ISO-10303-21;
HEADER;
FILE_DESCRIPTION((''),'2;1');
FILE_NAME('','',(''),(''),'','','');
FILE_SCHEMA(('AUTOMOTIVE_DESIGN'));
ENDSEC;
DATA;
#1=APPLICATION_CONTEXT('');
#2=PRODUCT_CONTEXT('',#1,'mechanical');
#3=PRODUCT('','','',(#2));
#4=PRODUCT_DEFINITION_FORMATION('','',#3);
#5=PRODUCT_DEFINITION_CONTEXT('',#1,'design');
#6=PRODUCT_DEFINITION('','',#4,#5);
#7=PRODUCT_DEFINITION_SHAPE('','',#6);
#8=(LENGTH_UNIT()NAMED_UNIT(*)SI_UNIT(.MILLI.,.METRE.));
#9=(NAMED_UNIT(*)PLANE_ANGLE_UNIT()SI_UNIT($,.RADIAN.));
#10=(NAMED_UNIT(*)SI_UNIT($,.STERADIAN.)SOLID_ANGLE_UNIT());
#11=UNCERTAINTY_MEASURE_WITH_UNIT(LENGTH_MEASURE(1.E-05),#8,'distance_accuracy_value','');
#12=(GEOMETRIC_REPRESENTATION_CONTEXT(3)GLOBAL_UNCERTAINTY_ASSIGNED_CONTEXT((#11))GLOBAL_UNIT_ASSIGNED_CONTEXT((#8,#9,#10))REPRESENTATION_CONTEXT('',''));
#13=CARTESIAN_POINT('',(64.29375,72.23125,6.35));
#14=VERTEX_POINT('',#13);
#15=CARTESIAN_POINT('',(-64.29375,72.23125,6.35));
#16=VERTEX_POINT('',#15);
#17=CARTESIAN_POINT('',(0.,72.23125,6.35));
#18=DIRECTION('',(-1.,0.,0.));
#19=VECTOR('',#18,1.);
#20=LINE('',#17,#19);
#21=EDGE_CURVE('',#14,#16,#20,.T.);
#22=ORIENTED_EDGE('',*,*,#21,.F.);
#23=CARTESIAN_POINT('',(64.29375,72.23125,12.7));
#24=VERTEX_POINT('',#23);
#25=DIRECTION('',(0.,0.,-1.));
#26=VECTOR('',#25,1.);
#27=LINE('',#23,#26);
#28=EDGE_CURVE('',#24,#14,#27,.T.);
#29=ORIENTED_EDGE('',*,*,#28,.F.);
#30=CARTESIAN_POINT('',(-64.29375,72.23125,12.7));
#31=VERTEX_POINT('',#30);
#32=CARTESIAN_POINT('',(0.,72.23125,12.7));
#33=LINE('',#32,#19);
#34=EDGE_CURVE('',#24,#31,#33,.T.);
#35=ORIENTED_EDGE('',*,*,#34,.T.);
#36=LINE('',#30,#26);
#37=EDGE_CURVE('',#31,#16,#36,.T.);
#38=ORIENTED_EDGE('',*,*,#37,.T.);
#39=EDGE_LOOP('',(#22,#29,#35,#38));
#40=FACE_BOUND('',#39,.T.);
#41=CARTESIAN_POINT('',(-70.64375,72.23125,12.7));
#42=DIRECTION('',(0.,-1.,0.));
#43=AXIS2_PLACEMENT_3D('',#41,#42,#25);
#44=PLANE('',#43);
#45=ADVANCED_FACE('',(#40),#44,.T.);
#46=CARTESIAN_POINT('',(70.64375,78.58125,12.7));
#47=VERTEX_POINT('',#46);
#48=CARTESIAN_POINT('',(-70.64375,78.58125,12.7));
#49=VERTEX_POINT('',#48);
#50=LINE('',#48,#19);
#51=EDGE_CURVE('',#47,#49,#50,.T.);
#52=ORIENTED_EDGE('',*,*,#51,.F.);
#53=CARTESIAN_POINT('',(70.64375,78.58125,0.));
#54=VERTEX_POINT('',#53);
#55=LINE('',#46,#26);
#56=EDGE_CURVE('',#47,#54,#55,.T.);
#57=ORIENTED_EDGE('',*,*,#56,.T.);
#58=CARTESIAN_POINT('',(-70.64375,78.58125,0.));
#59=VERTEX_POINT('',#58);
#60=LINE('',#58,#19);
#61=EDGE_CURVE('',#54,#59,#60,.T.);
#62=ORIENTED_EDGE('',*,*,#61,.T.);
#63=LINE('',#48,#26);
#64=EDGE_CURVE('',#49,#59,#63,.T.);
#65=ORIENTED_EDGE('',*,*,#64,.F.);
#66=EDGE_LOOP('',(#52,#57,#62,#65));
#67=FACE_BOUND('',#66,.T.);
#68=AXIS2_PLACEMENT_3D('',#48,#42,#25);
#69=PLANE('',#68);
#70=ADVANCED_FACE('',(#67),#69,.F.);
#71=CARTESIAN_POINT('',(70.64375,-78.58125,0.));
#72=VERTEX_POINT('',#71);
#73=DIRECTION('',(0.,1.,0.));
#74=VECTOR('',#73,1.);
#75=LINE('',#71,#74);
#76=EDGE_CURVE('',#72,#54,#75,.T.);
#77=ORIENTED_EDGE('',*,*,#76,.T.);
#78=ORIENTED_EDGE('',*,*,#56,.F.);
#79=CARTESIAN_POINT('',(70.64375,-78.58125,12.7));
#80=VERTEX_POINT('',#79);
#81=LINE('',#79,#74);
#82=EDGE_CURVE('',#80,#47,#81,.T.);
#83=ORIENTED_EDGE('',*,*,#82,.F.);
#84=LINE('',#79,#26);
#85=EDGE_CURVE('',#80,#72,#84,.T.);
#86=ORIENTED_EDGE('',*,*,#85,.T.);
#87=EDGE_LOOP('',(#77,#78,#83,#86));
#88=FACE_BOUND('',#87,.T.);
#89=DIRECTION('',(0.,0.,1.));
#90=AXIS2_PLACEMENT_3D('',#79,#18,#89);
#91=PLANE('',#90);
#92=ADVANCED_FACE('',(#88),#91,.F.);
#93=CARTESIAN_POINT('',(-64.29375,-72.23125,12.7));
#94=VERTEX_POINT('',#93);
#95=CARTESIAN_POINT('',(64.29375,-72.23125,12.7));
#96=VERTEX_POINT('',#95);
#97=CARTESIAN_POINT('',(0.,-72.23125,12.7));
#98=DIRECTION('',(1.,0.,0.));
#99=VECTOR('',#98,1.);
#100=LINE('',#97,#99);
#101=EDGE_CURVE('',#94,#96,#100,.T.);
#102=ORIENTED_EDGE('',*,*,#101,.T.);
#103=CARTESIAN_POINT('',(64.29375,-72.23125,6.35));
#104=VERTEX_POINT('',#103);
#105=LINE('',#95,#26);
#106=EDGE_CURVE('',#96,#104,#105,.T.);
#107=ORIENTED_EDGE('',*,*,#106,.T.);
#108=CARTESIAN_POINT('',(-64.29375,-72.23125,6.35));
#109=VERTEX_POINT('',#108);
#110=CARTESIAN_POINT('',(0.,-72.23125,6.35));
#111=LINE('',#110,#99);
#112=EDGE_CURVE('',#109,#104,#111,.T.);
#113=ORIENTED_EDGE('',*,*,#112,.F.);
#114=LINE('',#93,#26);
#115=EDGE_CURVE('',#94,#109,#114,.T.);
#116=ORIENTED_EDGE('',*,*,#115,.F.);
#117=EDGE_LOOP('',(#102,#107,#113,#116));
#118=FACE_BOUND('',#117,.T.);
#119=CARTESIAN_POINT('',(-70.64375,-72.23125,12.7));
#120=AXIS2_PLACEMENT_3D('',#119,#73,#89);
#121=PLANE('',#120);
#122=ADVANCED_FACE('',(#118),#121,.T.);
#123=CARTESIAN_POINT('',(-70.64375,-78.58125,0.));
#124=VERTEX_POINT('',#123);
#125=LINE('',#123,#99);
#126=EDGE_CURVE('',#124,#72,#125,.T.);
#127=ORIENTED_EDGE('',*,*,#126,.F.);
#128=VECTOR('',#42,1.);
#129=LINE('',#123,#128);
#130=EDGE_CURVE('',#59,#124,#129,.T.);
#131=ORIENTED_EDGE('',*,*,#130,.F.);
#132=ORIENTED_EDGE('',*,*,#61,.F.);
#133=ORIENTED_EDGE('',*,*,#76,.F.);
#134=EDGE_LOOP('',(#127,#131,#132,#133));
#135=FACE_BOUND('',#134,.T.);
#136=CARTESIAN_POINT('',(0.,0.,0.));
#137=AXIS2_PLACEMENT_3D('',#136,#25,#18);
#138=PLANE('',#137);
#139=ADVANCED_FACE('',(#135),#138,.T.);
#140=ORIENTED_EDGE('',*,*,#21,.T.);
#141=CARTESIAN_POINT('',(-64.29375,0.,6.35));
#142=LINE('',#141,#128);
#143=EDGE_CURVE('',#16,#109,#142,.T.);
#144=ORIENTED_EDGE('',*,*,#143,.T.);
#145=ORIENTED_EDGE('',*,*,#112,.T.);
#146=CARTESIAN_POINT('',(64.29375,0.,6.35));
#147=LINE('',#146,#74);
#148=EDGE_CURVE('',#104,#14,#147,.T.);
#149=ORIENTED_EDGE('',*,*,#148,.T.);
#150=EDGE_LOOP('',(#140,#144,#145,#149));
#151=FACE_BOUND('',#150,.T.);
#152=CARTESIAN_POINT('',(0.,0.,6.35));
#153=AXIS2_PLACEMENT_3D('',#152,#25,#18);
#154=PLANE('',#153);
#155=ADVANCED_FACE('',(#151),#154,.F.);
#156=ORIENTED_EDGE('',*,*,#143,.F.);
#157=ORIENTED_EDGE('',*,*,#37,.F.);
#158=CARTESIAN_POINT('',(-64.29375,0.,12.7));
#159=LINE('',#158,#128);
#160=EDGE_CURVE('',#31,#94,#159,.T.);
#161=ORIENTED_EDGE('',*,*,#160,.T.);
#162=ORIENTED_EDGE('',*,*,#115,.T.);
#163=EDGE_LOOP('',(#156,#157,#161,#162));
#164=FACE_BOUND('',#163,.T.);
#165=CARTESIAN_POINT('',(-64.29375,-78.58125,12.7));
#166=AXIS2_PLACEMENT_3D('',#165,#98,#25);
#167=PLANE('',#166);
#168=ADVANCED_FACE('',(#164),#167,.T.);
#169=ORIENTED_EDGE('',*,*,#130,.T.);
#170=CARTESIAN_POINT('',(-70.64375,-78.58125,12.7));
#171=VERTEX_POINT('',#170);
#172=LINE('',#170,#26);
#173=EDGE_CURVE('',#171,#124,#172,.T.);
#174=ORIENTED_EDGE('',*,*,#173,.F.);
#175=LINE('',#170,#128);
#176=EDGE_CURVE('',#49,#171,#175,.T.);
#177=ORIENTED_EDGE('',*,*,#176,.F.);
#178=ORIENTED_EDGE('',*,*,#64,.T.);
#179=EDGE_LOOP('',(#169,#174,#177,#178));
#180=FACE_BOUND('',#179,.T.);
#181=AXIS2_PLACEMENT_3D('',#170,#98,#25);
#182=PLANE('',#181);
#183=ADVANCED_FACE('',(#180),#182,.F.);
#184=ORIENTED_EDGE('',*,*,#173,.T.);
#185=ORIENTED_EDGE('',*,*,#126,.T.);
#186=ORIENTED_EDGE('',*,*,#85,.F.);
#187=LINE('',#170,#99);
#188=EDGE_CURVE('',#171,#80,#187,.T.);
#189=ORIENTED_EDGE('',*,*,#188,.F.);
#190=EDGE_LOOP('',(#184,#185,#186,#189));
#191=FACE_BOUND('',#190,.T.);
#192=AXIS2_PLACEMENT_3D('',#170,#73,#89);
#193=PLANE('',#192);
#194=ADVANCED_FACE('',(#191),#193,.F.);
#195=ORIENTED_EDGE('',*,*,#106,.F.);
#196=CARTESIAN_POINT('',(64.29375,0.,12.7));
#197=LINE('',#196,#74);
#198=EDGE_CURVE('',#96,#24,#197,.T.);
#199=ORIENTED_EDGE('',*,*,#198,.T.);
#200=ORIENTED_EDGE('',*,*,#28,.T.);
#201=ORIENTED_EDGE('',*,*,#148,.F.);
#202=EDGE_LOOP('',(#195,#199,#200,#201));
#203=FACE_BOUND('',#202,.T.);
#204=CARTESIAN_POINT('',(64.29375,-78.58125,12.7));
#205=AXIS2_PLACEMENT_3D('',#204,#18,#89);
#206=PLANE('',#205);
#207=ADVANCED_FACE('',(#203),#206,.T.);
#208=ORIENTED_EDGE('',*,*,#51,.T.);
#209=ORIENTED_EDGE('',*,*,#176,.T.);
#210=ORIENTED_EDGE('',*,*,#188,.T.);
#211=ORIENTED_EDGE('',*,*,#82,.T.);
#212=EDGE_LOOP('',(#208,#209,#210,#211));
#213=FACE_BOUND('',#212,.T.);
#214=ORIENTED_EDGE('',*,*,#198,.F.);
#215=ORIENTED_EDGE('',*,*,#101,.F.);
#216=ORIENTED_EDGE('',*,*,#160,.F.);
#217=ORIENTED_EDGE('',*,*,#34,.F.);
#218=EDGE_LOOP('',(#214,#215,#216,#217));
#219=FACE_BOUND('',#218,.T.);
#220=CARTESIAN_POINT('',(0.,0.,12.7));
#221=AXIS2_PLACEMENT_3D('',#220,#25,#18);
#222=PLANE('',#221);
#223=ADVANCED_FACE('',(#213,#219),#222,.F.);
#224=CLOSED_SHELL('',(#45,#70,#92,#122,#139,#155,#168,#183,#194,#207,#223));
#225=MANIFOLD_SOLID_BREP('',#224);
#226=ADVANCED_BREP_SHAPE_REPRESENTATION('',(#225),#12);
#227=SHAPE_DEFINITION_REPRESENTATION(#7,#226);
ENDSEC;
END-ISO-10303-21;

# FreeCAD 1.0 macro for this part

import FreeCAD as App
import Part
import Sketcher
Q = App.Units.Quantity


def faces_at(feature, points):
    """Names of the faces that lie closest to the given points."""
    faces = feature.Shape.Faces
    near = lambda p: min(range(len(faces)), key=lambda i: faces[i].distToShape(Part.Vertex(*p))[0])
    return sorted({f"Face{near(p) + 1}" for p in points})

doc = App.newDocument("Part")
body = doc.addObject("PartDesign::Body", "Body")

sketch1 = doc.addObject("Sketcher::SketchObject", "Sketch")
body.addObject(sketch1)
sketch1.AttachmentSupport = (doc.XY_Plane, [""])
sketch1.MapMode = "FlatFace"
sketch1.addGeometry([
    Part.LineSegment(App.Vector(-70.64375, 78.58125, 0), App.Vector(-70.64375, -78.58125, 0)),
    Part.LineSegment(App.Vector(-70.64375, -78.58125, 0), App.Vector(70.64375, -78.58125, 0)),
    Part.LineSegment(App.Vector(70.64375, -78.58125, 0), App.Vector(70.64375, 78.58125, 0)),
    Part.LineSegment(App.Vector(70.64375, 78.58125, 0), App.Vector(-70.64375, 78.58125, 0)),
], False)
sketch1.addConstraint([
    Sketcher.Constraint("Coincident", 0, 2, 1, 1),
    Sketcher.Constraint("Coincident", 1, 2, 2, 1),
    Sketcher.Constraint("Coincident", 2, 2, 3, 1),
    Sketcher.Constraint("Coincident", 3, 2, 0, 1),
    Sketcher.Constraint("Vertical", 0),
    Sketcher.Constraint("Horizontal", 1),
    Sketcher.Constraint("Vertical", 2),
    Sketcher.Constraint("Horizontal", 3),
    Sketcher.Constraint("Symmetric", 0, 2, 2, 2, -1, 1),
    Sketcher.Constraint("DistanceX", 1, 1, 1, 2, Q("5.5625 in")),
    Sketcher.Constraint("DistanceY", 0, 2, 0, 1, Q("6.1875 in")),
])
pad1 = doc.addObject("PartDesign::Pad", "Pad")
body.addObject(pad1)
pad1.Profile = sketch1
pad1.Length = Q("0.5 in")
doc.recompute()

thickness = doc.addObject("PartDesign::Thickness", "Thickness")
body.addObject(thickness)
thickness.Base = (pad1, faces_at(pad1, [(0, 0, 12.7)]))
thickness.Value = Q("0.25 in")
thickness.Reversed = True
thickness.Join = "Intersection"

doc.recompute()
